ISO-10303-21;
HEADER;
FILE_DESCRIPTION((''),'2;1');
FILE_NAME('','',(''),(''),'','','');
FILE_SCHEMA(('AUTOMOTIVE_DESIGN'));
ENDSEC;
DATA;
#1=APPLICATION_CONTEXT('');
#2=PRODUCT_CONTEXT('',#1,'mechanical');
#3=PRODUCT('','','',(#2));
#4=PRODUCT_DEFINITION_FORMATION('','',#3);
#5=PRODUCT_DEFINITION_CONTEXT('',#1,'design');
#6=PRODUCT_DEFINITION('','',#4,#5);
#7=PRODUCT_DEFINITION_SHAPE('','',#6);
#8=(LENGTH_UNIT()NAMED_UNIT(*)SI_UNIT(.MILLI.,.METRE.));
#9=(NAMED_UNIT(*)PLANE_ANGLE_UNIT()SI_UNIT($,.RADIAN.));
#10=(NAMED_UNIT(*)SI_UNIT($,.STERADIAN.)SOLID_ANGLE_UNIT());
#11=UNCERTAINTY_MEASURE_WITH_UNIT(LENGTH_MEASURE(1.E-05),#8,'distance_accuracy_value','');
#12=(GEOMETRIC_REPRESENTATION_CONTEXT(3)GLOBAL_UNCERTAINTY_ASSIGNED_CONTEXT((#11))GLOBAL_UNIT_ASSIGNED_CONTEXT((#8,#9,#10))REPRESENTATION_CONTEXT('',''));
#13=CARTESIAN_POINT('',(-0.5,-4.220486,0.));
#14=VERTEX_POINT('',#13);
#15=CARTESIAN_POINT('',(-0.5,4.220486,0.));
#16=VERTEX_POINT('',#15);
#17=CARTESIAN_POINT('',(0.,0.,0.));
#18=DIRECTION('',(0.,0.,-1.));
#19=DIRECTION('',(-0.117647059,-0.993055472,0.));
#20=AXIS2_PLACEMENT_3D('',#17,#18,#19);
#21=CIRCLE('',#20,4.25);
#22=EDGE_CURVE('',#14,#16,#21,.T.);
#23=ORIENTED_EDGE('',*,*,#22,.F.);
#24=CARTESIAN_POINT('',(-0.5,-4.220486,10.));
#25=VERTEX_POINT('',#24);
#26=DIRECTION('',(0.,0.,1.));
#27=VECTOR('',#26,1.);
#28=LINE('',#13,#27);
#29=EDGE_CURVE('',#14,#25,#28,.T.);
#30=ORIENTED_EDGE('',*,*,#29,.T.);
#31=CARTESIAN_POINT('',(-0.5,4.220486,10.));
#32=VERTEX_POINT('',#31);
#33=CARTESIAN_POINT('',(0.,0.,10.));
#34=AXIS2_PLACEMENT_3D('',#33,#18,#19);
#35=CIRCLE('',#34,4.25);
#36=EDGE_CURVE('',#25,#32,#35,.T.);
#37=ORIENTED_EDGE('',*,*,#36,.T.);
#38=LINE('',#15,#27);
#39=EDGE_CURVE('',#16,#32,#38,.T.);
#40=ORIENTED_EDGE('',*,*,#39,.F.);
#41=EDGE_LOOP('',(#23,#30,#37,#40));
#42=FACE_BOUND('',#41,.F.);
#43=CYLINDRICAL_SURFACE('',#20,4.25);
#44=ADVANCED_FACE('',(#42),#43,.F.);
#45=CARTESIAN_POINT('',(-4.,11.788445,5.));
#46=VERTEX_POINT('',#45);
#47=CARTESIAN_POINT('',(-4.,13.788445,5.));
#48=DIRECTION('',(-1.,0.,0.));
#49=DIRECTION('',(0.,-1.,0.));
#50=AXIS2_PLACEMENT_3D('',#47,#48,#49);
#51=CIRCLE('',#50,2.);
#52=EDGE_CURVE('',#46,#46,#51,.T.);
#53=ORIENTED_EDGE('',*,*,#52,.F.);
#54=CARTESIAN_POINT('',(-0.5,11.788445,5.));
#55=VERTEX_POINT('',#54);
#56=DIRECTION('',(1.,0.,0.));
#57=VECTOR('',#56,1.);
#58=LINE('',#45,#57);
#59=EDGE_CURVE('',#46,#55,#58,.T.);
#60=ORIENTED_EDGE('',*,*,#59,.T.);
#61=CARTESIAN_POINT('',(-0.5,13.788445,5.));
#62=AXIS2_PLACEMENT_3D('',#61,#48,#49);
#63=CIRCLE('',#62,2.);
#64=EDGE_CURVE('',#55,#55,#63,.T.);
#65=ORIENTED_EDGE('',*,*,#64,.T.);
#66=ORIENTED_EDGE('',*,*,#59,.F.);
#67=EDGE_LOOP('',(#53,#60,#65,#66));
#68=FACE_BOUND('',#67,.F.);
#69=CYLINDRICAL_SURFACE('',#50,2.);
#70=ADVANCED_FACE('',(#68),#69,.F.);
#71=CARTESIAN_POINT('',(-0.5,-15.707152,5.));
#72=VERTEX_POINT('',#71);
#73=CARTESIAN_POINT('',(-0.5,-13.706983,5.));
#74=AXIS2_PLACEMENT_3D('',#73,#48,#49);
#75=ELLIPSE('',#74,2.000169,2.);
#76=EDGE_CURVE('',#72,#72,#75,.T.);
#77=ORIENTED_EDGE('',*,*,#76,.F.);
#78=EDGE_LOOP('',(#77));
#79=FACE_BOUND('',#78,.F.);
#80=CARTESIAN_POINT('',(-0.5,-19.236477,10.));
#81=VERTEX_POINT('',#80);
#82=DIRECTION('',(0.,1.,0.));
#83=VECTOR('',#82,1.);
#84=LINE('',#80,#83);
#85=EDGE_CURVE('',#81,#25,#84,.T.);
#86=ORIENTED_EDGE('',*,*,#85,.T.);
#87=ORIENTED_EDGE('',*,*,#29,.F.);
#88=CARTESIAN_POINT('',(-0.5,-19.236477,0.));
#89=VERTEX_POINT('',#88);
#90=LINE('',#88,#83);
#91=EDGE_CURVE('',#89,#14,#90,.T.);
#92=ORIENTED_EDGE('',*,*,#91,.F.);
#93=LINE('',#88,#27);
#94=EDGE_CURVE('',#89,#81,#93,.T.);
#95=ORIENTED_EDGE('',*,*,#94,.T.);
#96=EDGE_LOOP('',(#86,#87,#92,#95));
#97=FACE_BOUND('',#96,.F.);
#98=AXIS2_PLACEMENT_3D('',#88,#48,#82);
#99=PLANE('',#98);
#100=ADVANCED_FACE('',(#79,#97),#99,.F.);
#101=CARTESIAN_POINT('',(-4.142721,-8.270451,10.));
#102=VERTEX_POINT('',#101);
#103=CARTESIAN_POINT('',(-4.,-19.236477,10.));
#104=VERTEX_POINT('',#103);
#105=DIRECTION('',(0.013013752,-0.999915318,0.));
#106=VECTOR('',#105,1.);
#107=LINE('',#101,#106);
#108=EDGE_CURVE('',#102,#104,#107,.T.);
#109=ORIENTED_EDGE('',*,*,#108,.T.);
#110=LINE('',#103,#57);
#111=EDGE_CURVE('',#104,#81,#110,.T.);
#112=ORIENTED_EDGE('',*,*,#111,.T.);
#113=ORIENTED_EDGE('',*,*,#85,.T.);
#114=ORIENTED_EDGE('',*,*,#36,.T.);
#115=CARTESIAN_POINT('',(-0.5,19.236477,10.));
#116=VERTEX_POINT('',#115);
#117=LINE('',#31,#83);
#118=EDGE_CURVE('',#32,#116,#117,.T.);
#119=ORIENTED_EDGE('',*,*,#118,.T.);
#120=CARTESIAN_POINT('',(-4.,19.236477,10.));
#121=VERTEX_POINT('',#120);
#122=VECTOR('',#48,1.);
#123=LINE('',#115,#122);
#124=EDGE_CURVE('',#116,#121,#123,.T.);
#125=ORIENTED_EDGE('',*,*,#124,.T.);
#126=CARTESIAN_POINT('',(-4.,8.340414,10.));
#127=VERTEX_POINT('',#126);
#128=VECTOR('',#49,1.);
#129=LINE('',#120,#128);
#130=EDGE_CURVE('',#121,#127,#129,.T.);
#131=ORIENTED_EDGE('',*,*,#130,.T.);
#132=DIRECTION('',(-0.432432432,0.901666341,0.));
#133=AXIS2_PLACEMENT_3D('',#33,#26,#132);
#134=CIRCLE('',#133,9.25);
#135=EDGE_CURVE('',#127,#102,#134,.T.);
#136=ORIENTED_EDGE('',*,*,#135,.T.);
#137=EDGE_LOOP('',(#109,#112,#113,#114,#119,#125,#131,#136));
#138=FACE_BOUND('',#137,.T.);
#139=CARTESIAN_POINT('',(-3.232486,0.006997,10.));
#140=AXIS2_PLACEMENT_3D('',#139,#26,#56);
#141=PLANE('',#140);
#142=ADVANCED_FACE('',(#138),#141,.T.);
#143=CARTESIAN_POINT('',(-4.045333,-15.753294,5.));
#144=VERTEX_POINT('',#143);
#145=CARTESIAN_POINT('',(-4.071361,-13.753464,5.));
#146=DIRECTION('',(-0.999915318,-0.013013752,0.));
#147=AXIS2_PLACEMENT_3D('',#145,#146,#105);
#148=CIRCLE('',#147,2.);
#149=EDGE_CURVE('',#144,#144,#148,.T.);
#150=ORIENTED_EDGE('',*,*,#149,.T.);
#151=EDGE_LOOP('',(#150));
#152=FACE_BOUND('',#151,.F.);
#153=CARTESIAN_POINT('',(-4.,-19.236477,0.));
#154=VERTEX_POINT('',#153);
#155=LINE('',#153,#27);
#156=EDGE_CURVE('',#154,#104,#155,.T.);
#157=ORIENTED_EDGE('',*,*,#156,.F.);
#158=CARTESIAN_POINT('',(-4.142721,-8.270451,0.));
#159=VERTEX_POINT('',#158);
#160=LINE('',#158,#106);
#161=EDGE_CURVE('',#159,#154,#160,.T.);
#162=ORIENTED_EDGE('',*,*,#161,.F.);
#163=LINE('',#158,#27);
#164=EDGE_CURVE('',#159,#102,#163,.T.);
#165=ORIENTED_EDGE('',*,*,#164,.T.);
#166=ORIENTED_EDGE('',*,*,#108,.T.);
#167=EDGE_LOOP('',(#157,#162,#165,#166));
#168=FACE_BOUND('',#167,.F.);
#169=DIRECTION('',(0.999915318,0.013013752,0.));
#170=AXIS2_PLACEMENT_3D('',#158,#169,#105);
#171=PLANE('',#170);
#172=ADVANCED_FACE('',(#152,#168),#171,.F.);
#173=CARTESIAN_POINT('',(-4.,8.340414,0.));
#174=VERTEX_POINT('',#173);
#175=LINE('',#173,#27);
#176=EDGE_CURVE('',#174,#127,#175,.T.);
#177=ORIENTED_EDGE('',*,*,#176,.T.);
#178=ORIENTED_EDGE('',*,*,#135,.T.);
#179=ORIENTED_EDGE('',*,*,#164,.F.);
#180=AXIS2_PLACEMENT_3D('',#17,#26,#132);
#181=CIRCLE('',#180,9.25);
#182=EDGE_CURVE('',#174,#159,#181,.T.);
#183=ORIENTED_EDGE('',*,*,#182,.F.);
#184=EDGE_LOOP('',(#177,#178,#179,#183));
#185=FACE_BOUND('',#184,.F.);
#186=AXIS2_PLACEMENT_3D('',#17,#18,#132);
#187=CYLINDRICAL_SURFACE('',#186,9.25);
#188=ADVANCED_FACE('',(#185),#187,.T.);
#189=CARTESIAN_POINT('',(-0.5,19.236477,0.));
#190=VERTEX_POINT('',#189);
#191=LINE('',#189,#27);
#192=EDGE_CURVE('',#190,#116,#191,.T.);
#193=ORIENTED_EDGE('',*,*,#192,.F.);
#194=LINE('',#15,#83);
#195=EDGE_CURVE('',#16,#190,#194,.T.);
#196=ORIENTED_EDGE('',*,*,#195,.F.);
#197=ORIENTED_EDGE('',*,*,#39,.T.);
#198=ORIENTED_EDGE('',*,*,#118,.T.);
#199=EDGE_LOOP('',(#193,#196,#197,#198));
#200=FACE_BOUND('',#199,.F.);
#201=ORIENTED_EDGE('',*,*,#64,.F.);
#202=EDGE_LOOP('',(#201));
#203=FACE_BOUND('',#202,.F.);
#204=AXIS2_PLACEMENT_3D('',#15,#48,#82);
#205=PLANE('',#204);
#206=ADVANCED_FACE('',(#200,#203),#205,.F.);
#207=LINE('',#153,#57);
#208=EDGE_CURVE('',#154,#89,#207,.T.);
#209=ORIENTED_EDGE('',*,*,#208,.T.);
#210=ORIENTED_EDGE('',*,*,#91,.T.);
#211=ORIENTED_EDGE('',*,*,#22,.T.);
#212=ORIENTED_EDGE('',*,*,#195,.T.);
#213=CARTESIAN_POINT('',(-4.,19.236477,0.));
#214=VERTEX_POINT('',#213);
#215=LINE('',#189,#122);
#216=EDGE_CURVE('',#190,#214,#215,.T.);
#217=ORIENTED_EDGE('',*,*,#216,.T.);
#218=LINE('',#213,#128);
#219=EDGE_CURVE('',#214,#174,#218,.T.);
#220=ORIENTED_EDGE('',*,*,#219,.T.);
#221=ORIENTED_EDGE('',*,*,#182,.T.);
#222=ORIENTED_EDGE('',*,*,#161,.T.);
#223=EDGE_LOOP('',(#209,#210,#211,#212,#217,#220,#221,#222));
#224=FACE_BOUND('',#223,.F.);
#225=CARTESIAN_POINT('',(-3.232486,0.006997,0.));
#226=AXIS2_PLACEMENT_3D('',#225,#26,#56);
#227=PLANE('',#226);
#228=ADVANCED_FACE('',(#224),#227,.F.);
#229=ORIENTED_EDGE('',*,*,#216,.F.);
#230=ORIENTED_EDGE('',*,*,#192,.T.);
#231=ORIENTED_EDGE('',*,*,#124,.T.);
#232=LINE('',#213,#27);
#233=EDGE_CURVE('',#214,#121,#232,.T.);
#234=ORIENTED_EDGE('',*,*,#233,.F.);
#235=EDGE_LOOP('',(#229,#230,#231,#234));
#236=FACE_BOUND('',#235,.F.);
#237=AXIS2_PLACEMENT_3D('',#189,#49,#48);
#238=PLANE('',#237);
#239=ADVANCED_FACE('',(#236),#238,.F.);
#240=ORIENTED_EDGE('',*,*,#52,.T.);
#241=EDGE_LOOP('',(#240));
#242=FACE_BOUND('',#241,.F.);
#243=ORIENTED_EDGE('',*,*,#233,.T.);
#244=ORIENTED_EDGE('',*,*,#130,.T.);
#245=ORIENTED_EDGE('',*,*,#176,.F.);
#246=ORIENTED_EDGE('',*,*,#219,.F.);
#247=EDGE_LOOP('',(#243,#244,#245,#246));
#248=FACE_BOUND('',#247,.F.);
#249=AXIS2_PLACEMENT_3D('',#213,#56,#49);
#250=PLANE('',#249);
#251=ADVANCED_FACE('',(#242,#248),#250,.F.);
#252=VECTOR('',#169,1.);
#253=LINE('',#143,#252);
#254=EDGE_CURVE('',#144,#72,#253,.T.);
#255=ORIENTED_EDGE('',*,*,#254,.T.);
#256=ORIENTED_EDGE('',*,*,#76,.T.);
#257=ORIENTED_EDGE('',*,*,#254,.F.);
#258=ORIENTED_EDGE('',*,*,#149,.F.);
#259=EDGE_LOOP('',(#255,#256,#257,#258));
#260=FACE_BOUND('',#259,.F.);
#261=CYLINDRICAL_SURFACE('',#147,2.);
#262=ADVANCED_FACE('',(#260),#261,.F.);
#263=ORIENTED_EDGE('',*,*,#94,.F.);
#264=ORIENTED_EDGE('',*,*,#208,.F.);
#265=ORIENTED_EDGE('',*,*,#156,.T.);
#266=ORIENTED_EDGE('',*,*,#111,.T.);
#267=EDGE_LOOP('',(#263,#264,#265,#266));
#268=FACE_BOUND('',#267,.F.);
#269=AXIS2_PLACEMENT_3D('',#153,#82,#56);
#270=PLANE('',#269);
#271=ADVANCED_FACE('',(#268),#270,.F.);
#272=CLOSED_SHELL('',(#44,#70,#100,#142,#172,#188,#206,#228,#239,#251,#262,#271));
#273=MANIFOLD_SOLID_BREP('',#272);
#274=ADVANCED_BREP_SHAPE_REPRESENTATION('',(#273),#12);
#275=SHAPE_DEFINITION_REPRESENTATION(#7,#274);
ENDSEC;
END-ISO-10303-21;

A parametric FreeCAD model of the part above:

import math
import FreeCAD as App
import Part
import Sketcher
Q = App.Units.Quantity

doc = App.newDocument("Part")
body = doc.addObject("PartDesign::Body", "Body")

# Sketch on XY plane
sketch1 = doc.addObject("Sketcher::SketchObject", "Sketch")
body.addObject(sketch1)
sketch1.AttachmentSupport = (doc.XY_Plane, [""])
sketch1.MapMode = "FlatFace"
sketch1.addGeometry([
    Part.ArcOfCircle(Part.Circle(App.Vector(0, 0, 0), App.Vector(0, 0, 1), 4.25), math.radians(96.756327), math.radians(263.243673)),  # 0
    Part.LineSegment(App.Vector(-0.5, 4.220486, 0), App.Vector(-0.5, 19.236477, 0)),  # 1
    Part.LineSegment(App.Vector(-0.5, 19.236477, 0), App.Vector(-4, 19.236477, 0)),  # 2
    Part.LineSegment(App.Vector(-4, 19.236477, 0), App.Vector(-4, 8.340414, 0)),  # 3
    Part.ArcOfCircle(Part.Circle(App.Vector(0, 0, 0), App.Vector(0, 0, 1), 9.25), math.radians(115.622028), math.radians(243.393421)),  # 4
    Part.LineSegment(App.Vector(-4.142721, -8.270451, 0), App.Vector(-4, -19.236477, 0)),  # 5
    Part.LineSegment(App.Vector(-4, -19.236477, 0), App.Vector(-0.5, -19.236477, 0)),  # 6
    Part.LineSegment(App.Vector(-0.5, -19.236477, 0), App.Vector(-0.5, -4.220486, 0)),  # 7
], False)
sketch1.addConstraint([
    Sketcher.Constraint("Coincident", 0, 1, 1, 1),
    Sketcher.Constraint("Coincident", 1, 2, 2, 1),
    Sketcher.Constraint("Coincident", 2, 2, 3, 1),
    Sketcher.Constraint("Coincident", 3, 2, 4, 1),
    Sketcher.Constraint("Coincident", 4, 2, 5, 1),
    Sketcher.Constraint("Coincident", 5, 2, 6, 1),
    Sketcher.Constraint("Coincident", 6, 2, 7, 1),
    Sketcher.Constraint("Coincident", 7, 2, 0, 2),
    Sketcher.Constraint("Vertical", 1),
    Sketcher.Constraint("Horizontal", 2),
    Sketcher.Constraint("Vertical", 3),
    Sketcher.Constraint("Horizontal", 6),
    Sketcher.Constraint("Vertical", 7),
    Sketcher.Constraint("Coincident", 0, 3, -1, 1),
    Sketcher.Constraint("Coincident", 4, 3, -1, 1),
    Sketcher.Constraint("Symmetric", 2, 2, 5, 2, -1),
    Sketcher.Constraint("Vertical", 1, 2, 6, 2),
    Sketcher.Constraint("Radius", 0, Q("4.25 mm")),
    Sketcher.Constraint("Radius", 4, Q("9.25 mm")),
    Sketcher.Constraint("DistanceX", 2, 2, 2, 1, Q("3.5 mm")),
    Sketcher.Constraint("DistanceX", 2, 2, -1, 1, Q("4 mm")),
    Sketcher.Constraint("DistanceY", 1, 1, 1, 2, Q("15.015991 mm")),
    Sketcher.Constraint("DistanceX", 4, 2, -1, 1, Q("4.142721 mm")),
])
pad1 = doc.addObject("PartDesign::Pad", "Pad")
body.addObject(pad1)
pad1.Profile = sketch1
pad1.Length = 10

# Sketch on YZ plane
sketch2 = doc.addObject("Sketcher::SketchObject", "Sketch001")
body.addObject(sketch2)
sketch2.AttachmentSupport = (doc.YZ_Plane, [""])
sketch2.MapMode = "FlatFace"
sketch2.AttachmentOffset = App.Placement(App.Vector(0, 0, -4), App.Rotation())
sketch2.addGeometry(Part.Circle(App.Vector(13.788445, 5, 0), App.Vector(0, 0, 1), 2), False)
sketch2.addConstraint([
    Sketcher.Constraint("Diameter", 0, Q("4 mm")),
    Sketcher.Constraint("DistanceY", -1, 1, 0, 3, Q("5 mm")),
    Sketcher.Constraint("DistanceX", -1, 1, 0, 3, Q("13.788445 mm")),
])
pocket1 = doc.addObject("PartDesign::Pocket", "Pocket")
body.addObject(pocket1)
pocket1.Profile = sketch2
pocket1.Length = 25
pocket1.Reversed = True

# Sketch on an angled plane
sketch3 = doc.addObject("Sketcher::SketchObject", "Sketch002")
body.addObject(sketch3)
sketch3.Placement = App.Placement(App.Vector(-4.24964, -0.055308, 0), App.Rotation(App.Vector(0.013013752, -0.999915318, 0), App.Vector(0, 0, 1.000000001), App.Vector(-0.999915318, -0.013013752, 0), "ZXY"))
sketch3.addGeometry(Part.Circle(App.Vector(13.699315, 5, 0), App.Vector(0, 0, 1), 2), False)
sketch3.addConstraint([
    Sketcher.Constraint("Diameter", 0, Q("4 mm")),
    Sketcher.Constraint("DistanceY", -1, 1, 0, 3, Q("5 mm")),
    Sketcher.Constraint("DistanceX", -1, 1, 0, 3, Q("13.699315 mm")),
])
pocket2 = doc.addObject("PartDesign::Pocket", "Pocket001")
body.addObject(pocket2)
pocket2.Profile = sketch3
pocket2.Length = 25

doc.recompute()
